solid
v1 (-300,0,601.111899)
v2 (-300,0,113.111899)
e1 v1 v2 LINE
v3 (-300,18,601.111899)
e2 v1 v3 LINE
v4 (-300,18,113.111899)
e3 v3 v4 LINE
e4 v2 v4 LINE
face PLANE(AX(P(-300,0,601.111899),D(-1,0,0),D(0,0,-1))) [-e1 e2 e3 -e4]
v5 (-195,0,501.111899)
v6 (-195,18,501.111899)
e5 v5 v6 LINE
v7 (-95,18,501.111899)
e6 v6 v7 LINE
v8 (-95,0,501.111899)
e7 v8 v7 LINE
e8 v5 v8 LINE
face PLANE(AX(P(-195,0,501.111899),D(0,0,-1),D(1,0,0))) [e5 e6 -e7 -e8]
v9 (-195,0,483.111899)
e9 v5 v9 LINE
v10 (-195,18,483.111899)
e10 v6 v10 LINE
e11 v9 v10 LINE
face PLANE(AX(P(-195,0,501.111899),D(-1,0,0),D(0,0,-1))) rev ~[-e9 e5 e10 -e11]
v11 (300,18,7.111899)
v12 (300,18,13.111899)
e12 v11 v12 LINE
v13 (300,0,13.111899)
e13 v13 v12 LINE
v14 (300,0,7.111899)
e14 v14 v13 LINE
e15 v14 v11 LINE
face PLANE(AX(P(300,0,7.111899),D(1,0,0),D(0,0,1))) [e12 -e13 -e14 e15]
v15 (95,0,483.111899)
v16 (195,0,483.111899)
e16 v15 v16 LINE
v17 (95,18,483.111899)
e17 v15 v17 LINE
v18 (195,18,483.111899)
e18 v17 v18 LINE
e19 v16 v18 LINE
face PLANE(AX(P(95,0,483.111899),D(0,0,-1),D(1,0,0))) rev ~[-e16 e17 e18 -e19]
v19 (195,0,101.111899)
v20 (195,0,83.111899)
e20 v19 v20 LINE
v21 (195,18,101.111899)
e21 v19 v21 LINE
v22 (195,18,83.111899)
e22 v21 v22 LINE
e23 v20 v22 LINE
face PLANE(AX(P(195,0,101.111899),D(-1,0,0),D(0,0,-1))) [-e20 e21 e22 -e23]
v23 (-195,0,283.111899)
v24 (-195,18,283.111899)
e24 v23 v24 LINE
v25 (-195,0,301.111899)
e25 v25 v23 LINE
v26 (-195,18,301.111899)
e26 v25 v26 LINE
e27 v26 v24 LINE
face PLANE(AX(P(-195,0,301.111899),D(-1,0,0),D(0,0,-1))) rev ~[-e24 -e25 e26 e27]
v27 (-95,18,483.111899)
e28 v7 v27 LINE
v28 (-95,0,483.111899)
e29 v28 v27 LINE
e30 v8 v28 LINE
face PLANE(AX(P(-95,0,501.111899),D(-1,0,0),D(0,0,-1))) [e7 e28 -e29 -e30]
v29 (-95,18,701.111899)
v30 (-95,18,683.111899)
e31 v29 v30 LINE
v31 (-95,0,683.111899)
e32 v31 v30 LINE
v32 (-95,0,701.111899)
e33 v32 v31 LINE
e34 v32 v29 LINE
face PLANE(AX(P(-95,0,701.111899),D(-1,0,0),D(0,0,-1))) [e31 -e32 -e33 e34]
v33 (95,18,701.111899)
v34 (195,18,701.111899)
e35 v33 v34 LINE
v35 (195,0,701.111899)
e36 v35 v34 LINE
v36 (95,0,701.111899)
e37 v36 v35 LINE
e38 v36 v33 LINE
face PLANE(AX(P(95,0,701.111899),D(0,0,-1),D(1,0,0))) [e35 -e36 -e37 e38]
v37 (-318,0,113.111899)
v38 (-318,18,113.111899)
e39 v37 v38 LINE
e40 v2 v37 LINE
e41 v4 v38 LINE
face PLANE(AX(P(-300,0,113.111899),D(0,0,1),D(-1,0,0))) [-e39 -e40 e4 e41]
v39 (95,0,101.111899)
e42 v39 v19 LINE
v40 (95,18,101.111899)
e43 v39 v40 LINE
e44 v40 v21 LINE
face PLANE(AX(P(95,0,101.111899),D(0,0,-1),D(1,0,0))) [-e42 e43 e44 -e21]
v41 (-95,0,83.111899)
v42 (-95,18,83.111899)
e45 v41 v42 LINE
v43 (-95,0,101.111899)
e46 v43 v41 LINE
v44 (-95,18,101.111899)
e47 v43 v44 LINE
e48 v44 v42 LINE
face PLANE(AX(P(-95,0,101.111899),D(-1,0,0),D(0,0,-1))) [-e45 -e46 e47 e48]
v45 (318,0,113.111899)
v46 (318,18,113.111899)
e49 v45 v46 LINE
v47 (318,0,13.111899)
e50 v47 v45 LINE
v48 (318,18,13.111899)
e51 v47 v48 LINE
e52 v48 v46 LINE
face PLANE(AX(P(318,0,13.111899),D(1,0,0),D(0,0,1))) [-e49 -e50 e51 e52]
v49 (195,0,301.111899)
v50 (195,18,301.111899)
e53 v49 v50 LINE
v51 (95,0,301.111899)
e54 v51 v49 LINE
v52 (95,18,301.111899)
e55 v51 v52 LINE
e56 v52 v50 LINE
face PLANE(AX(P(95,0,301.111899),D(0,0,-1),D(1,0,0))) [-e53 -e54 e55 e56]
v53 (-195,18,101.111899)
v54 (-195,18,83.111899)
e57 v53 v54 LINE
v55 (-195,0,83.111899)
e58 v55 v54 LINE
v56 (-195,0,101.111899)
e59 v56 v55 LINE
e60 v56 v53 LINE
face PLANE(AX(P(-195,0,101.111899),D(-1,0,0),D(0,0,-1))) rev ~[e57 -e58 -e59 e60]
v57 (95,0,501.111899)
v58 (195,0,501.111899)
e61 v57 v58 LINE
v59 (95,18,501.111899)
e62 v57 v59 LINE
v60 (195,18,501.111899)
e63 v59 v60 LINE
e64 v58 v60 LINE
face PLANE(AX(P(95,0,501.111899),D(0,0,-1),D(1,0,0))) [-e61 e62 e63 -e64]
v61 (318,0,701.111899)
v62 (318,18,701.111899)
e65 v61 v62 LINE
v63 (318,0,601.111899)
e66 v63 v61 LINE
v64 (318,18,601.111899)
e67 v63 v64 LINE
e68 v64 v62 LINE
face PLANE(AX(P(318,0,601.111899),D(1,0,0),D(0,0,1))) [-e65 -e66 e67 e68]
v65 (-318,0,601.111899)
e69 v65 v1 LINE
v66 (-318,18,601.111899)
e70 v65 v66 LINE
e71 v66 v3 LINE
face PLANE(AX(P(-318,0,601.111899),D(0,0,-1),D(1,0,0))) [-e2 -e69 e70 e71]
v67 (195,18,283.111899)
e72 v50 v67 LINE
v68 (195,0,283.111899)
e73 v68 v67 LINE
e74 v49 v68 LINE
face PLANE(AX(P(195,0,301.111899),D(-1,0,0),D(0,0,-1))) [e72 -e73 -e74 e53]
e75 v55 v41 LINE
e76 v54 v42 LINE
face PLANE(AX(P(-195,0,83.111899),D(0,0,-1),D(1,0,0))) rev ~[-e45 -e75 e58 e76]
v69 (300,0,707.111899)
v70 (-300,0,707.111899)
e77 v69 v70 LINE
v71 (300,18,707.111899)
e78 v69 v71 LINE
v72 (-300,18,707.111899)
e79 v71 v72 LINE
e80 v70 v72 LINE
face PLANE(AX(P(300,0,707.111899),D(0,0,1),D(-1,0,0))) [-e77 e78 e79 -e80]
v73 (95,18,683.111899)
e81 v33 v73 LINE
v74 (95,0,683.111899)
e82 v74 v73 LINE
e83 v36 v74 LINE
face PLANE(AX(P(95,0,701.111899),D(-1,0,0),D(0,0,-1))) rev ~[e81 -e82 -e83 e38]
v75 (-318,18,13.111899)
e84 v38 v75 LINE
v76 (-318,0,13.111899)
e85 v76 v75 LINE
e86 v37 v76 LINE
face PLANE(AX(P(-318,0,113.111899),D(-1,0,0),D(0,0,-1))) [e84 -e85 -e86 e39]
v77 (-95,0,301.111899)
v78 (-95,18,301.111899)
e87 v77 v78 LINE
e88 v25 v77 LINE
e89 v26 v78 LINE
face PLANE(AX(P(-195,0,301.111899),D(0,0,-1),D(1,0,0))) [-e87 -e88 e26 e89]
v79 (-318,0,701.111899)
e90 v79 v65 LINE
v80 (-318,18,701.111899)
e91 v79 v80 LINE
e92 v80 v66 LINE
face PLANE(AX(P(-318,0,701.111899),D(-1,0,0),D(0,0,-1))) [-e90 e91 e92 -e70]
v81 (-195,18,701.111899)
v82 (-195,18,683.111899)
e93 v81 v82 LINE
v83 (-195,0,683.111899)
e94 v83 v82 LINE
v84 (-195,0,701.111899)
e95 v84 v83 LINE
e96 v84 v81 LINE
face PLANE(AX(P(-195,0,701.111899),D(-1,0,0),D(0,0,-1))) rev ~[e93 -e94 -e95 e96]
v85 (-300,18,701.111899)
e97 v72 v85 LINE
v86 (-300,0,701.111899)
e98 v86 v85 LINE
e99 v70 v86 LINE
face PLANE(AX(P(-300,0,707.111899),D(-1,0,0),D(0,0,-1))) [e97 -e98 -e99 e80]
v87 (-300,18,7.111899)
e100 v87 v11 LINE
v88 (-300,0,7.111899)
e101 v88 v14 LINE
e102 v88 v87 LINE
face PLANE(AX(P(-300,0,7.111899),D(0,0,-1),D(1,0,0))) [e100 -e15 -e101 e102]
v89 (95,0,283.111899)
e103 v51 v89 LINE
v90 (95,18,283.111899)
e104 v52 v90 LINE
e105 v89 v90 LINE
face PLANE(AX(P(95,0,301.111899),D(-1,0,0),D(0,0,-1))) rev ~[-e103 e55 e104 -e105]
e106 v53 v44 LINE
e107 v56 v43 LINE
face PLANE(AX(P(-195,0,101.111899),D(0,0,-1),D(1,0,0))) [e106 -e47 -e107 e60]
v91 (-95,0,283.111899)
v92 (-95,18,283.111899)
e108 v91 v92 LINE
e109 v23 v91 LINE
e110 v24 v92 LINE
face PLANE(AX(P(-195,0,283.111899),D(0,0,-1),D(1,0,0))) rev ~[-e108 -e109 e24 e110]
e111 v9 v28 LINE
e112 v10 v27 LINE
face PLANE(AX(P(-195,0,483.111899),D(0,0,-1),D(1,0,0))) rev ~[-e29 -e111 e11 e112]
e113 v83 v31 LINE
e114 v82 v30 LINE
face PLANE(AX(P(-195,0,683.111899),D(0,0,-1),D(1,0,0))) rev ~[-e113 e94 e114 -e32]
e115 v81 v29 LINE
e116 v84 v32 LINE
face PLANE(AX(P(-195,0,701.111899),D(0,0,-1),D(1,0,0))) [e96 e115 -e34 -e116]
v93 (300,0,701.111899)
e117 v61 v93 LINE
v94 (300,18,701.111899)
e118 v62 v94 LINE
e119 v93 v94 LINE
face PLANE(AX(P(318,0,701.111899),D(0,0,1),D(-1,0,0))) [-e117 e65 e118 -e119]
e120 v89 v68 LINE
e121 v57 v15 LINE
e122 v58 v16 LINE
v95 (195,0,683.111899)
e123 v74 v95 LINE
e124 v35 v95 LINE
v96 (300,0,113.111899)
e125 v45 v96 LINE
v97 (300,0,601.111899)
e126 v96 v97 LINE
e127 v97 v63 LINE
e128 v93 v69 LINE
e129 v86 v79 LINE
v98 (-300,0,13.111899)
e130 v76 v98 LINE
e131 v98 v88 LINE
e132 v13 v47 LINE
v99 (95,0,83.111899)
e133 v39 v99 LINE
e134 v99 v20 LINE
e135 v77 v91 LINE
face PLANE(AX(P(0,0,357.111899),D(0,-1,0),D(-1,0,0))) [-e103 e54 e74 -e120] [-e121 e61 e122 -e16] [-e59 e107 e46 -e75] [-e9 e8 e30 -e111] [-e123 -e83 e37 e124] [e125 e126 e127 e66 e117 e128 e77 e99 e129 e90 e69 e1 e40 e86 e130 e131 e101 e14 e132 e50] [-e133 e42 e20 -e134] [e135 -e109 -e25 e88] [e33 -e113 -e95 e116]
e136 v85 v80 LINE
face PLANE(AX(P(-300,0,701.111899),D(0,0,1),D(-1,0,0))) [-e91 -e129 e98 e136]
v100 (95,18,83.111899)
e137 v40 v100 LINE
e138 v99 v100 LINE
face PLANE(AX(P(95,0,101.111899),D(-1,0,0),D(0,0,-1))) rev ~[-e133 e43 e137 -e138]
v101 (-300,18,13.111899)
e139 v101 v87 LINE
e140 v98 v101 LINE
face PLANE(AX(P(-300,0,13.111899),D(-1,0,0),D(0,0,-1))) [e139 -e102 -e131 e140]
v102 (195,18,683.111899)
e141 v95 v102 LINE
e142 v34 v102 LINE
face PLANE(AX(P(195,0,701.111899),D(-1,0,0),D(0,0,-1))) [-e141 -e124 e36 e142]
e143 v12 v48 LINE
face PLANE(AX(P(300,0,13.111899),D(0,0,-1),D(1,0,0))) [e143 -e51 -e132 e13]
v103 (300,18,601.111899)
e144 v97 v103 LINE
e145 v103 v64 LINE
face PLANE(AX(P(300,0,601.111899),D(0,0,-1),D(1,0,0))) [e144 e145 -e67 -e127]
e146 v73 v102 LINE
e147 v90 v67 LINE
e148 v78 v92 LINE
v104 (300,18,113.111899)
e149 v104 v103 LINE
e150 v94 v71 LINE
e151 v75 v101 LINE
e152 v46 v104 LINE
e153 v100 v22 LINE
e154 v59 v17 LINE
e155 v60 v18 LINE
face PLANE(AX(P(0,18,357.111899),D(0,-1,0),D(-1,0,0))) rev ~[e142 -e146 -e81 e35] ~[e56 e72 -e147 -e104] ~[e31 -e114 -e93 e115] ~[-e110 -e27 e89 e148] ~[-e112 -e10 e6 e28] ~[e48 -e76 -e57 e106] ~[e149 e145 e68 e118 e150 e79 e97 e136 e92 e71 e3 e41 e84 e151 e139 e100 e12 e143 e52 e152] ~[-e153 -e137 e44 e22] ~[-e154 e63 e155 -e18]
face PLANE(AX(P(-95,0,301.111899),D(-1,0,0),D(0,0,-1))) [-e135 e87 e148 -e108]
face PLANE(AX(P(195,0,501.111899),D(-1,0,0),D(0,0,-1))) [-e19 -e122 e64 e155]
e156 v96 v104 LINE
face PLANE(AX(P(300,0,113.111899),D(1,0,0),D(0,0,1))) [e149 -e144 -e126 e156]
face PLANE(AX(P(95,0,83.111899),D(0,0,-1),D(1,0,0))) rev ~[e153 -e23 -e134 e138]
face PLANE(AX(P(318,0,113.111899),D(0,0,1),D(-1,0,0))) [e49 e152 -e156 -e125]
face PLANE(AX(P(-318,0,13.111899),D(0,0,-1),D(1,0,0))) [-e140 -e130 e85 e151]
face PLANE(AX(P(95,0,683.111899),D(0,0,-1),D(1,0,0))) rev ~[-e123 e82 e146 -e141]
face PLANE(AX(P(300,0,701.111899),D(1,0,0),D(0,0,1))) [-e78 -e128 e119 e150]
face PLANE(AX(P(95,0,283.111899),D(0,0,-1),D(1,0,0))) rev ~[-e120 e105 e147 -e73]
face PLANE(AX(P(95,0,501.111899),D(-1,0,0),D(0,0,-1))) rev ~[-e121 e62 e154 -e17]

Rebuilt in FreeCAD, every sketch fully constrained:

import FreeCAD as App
import Part
import Sketcher


def add_polygon(sketch, points):
    """Adds a closed chain of lines whose ends are joined by coincident constraints."""
    first, n = sketch.GeometryCount, len(points)
    for a, b in zip(points, points[1:] + points[:1]):
        sketch.addGeometry(Part.LineSegment(App.Vector(*a, 0), App.Vector(*b, 0)), False)
    for i in range(n):
        sketch.addConstraint(Sketcher.Constraint("Coincident", first + i, 2, first + (i + 1) % n, 1))

doc = App.newDocument("Part")
params = doc.addObject("Spreadsheet::Sheet", "Params")
for row, (alias, value) in enumerate([
    ("sketch1_width", "600 mm"),
    ("sketch1_width2", "18 mm"),
    ("sketch1_width3", "100 mm"),
    ("sketch1_height", "6 mm"),
    ("sketch1_height2", "488 mm"),
    ("pad1_length", "18 mm"),
], start=1):
    params.set(f"A{row}", alias)
    params.set(f"B{row}", "=" + value)
    params.setAlias(f"B{row}", alias)

body = doc.addObject("PartDesign::Body", "Body")

sketch1 = body.newObject("Sketcher::SketchObject", "Sketch")
sketch1.AttachmentSupport = (doc.getObject("XZ_Plane"), [""])
sketch1.MapMode = "FlatFace"
add_polygon(sketch1, [(300, 7), (-300, 7), (-300, 13), (-318, 13), (-318, 113), (-300, 113), (-300, 601), (-318, 601), (-318, 701), (-300, 701), (-300, 707), (300, 707), (300, 701), (318, 701), (318, 601), (300, 601), (300, 113), (318, 113), (318, 13), (300, 13)])
add_polygon(sketch1, [(95, 701), (95, 683), (195, 683), (195, 701)])
add_polygon(sketch1, [(95, 501), (95, 483), (195, 483), (195, 501)])
add_polygon(sketch1, [(-195, 701), (-195, 683), (-95, 683), (-95, 701)])
add_polygon(sketch1, [(-195, 501), (-195, 483), (-95, 483), (-95, 501)])
add_polygon(sketch1, [(95, 301), (95, 283), (195, 283), (195, 301)])
add_polygon(sketch1, [(95, 101), (95, 83), (195, 83), (195, 101)])
add_polygon(sketch1, [(-195, 301), (-195, 283), (-95, 283), (-95, 301)])
add_polygon(sketch1, [(-195, 101), (-195, 83), (-95, 83), (-95, 101)])
sketch1.addConstraint([
    Sketcher.Constraint("Horizontal", 0),
    Sketcher.Constraint("Vertical", 1),
    Sketcher.Constraint("Horizontal", 2),
    Sketcher.Constraint("Vertical", 3),
    Sketcher.Constraint("Horizontal", 4),
    Sketcher.Constraint("Vertical", 5),
    Sketcher.Constraint("Horizontal", 6),
    Sketcher.Constraint("Vertical", 7),
    Sketcher.Constraint("Horizontal", 8),
    Sketcher.Constraint("Vertical", 9),
    Sketcher.Constraint("Horizontal", 10),
    Sketcher.Constraint("Vertical", 11),
    Sketcher.Constraint("Horizontal", 12),
    Sketcher.Constraint("Vertical", 13),
    Sketcher.Constraint("Horizontal", 14),
    Sketcher.Constraint("Vertical", 15),
    Sketcher.Constraint("Horizontal", 16),
    Sketcher.Constraint("Vertical", 17),
    Sketcher.Constraint("Horizontal", 18),
    Sketcher.Constraint("Vertical", 19),
    Sketcher.Constraint("Vertical", 20),
    Sketcher.Constraint("Horizontal", 21),
    Sketcher.Constraint("Vertical", 22),
    Sketcher.Constraint("Horizontal", 23),
    Sketcher.Constraint("Vertical", 24),
    Sketcher.Constraint("Horizontal", 25),
    Sketcher.Constraint("Vertical", 26),
    Sketcher.Constraint("Horizontal", 27),
    Sketcher.Constraint("Vertical", 28),
    Sketcher.Constraint("Horizontal", 29),
    Sketcher.Constraint("Vertical", 30),
    Sketcher.Constraint("Horizontal", 31),
    Sketcher.Constraint("Vertical", 32),
    Sketcher.Constraint("Horizontal", 33),
    Sketcher.Constraint("Vertical", 34),
    Sketcher.Constraint("Horizontal", 35),
    Sketcher.Constraint("Vertical", 36),
    Sketcher.Constraint("Horizontal", 37),
    Sketcher.Constraint("Vertical", 38),
    Sketcher.Constraint("Horizontal", 39),
    Sketcher.Constraint("Vertical", 40),
    Sketcher.Constraint("Horizontal", 41),
    Sketcher.Constraint("Vertical", 42),
    Sketcher.Constraint("Horizontal", 43),
    Sketcher.Constraint("Vertical", 44),
    Sketcher.Constraint("Horizontal", 45),
    Sketcher.Constraint("Vertical", 46),
    Sketcher.Constraint("Horizontal", 47),
    Sketcher.Constraint("Vertical", 48),
    Sketcher.Constraint("Horizontal", 49),
    Sketcher.Constraint("Vertical", 50),
    Sketcher.Constraint("Horizontal", 51),
    Sketcher.Constraint("Symmetric", 8, 2, 11, 2, -2),
    Sketcher.Constraint("Symmetric", 6, 2, 13, 2, -2),
    Sketcher.Constraint("Symmetric", 4, 2, 15, 2, -2),
    Sketcher.Constraint("Symmetric", 2, 2, 17, 2, -2),
    Sketcher.Constraint("Symmetric", 21, 2, 28, 2, -2),
    Sketcher.Constraint("Symmetric", 23, 2, 30, 2, -2),
    Sketcher.Constraint("Symmetric", 25, 2, 32, 2, -2),
    Sketcher.Constraint("Symmetric", 27, 2, 34, 2, -2),
    Sketcher.Constraint("Symmetric", 37, 2, 44, 2, -2),
    Sketcher.Constraint("Symmetric", 39, 2, 46, 2, -2),
    Sketcher.Constraint("Symmetric", 41, 2, 48, 2, -2),
    Sketcher.Constraint("Symmetric", 43, 2, 50, 2, -2),
    Sketcher.Constraint("Horizontal", 12, 2, 22, 2),
    Sketcher.Constraint("Vertical", 1, 2, 4, 2),
    Sketcher.Constraint("Vertical", 3, 2, 6, 2),
    Sketcher.Constraint("Vertical", 5, 2, 8, 2),
    Sketcher.Constraint("Vertical", 15, 2, 18, 2),
    Sketcher.Constraint("Vertical", 23, 2, 24, 2),
    Sketcher.Constraint("Vertical", 22, 2, 25, 2),
    Sketcher.Constraint("Vertical", 27, 2, 36, 2),
    Sketcher.Constraint("Vertical", 26, 2, 37, 2),
    Sketcher.Constraint("Vertical", 39, 2, 40, 2),
    Sketcher.Constraint("Vertical", 38, 2, 41, 2),
    Sketcher.Constraint("Equal", 51, 3),
    Sketcher.Constraint("Equal", 3, 7),
    Sketcher.Constraint("Equal", 1, 9),
    Sketcher.Constraint("Equal", 18, 20),
    Sketcher.Constraint("Equal", 22, 24),
    Sketcher.Constraint("Equal", 34, 36),
    Sketcher.Constraint("Equal", 38, 40),
    Sketcher.Constraint("DistanceX", 0, 2, 0, 1, 600.0),
    Sketcher.Constraint("DistanceX", 2, 2, 2, 1, 18.0),
    Sketcher.Constraint("DistanceX", 21, 1, 21, 2, 100.0),
    Sketcher.Constraint("DistanceY", 1, 1, 1, 2, 6.0),
    Sketcher.Constraint("DistanceY", 5, 1, 5, 2, 488.0),
    Sketcher.Constraint("DistanceX", -1, 1, 20, 2, 95.0),
    Sketcher.Constraint("DistanceY", 24, 2, 20, 2, 200.0),
    Sketcher.Constraint("DistanceY", 36, 2, 24, 2, 200.0),
    Sketcher.Constraint("DistanceY", 40, 2, 36, 2, 200.0),
    Sketcher.Constraint("DistanceY", -1, 1, 0, 2, 7.111899),
])
sketch1.setExpression("Constraints[134]", "Params.sketch1_width")
sketch1.setExpression("Constraints[135]", "Params.sketch1_width2")
sketch1.setExpression("Constraints[136]", "Params.sketch1_width3")
sketch1.setExpression("Constraints[137]", "Params.sketch1_height")
sketch1.setExpression("Constraints[138]", "Params.sketch1_height2")
pad1 = body.newObject("PartDesign::Pad", "Pad")
pad1.Profile = sketch1
pad1.setExpression("Length", "Params.pad1_length")
pad1.Reversed = True

doc.recompute()
